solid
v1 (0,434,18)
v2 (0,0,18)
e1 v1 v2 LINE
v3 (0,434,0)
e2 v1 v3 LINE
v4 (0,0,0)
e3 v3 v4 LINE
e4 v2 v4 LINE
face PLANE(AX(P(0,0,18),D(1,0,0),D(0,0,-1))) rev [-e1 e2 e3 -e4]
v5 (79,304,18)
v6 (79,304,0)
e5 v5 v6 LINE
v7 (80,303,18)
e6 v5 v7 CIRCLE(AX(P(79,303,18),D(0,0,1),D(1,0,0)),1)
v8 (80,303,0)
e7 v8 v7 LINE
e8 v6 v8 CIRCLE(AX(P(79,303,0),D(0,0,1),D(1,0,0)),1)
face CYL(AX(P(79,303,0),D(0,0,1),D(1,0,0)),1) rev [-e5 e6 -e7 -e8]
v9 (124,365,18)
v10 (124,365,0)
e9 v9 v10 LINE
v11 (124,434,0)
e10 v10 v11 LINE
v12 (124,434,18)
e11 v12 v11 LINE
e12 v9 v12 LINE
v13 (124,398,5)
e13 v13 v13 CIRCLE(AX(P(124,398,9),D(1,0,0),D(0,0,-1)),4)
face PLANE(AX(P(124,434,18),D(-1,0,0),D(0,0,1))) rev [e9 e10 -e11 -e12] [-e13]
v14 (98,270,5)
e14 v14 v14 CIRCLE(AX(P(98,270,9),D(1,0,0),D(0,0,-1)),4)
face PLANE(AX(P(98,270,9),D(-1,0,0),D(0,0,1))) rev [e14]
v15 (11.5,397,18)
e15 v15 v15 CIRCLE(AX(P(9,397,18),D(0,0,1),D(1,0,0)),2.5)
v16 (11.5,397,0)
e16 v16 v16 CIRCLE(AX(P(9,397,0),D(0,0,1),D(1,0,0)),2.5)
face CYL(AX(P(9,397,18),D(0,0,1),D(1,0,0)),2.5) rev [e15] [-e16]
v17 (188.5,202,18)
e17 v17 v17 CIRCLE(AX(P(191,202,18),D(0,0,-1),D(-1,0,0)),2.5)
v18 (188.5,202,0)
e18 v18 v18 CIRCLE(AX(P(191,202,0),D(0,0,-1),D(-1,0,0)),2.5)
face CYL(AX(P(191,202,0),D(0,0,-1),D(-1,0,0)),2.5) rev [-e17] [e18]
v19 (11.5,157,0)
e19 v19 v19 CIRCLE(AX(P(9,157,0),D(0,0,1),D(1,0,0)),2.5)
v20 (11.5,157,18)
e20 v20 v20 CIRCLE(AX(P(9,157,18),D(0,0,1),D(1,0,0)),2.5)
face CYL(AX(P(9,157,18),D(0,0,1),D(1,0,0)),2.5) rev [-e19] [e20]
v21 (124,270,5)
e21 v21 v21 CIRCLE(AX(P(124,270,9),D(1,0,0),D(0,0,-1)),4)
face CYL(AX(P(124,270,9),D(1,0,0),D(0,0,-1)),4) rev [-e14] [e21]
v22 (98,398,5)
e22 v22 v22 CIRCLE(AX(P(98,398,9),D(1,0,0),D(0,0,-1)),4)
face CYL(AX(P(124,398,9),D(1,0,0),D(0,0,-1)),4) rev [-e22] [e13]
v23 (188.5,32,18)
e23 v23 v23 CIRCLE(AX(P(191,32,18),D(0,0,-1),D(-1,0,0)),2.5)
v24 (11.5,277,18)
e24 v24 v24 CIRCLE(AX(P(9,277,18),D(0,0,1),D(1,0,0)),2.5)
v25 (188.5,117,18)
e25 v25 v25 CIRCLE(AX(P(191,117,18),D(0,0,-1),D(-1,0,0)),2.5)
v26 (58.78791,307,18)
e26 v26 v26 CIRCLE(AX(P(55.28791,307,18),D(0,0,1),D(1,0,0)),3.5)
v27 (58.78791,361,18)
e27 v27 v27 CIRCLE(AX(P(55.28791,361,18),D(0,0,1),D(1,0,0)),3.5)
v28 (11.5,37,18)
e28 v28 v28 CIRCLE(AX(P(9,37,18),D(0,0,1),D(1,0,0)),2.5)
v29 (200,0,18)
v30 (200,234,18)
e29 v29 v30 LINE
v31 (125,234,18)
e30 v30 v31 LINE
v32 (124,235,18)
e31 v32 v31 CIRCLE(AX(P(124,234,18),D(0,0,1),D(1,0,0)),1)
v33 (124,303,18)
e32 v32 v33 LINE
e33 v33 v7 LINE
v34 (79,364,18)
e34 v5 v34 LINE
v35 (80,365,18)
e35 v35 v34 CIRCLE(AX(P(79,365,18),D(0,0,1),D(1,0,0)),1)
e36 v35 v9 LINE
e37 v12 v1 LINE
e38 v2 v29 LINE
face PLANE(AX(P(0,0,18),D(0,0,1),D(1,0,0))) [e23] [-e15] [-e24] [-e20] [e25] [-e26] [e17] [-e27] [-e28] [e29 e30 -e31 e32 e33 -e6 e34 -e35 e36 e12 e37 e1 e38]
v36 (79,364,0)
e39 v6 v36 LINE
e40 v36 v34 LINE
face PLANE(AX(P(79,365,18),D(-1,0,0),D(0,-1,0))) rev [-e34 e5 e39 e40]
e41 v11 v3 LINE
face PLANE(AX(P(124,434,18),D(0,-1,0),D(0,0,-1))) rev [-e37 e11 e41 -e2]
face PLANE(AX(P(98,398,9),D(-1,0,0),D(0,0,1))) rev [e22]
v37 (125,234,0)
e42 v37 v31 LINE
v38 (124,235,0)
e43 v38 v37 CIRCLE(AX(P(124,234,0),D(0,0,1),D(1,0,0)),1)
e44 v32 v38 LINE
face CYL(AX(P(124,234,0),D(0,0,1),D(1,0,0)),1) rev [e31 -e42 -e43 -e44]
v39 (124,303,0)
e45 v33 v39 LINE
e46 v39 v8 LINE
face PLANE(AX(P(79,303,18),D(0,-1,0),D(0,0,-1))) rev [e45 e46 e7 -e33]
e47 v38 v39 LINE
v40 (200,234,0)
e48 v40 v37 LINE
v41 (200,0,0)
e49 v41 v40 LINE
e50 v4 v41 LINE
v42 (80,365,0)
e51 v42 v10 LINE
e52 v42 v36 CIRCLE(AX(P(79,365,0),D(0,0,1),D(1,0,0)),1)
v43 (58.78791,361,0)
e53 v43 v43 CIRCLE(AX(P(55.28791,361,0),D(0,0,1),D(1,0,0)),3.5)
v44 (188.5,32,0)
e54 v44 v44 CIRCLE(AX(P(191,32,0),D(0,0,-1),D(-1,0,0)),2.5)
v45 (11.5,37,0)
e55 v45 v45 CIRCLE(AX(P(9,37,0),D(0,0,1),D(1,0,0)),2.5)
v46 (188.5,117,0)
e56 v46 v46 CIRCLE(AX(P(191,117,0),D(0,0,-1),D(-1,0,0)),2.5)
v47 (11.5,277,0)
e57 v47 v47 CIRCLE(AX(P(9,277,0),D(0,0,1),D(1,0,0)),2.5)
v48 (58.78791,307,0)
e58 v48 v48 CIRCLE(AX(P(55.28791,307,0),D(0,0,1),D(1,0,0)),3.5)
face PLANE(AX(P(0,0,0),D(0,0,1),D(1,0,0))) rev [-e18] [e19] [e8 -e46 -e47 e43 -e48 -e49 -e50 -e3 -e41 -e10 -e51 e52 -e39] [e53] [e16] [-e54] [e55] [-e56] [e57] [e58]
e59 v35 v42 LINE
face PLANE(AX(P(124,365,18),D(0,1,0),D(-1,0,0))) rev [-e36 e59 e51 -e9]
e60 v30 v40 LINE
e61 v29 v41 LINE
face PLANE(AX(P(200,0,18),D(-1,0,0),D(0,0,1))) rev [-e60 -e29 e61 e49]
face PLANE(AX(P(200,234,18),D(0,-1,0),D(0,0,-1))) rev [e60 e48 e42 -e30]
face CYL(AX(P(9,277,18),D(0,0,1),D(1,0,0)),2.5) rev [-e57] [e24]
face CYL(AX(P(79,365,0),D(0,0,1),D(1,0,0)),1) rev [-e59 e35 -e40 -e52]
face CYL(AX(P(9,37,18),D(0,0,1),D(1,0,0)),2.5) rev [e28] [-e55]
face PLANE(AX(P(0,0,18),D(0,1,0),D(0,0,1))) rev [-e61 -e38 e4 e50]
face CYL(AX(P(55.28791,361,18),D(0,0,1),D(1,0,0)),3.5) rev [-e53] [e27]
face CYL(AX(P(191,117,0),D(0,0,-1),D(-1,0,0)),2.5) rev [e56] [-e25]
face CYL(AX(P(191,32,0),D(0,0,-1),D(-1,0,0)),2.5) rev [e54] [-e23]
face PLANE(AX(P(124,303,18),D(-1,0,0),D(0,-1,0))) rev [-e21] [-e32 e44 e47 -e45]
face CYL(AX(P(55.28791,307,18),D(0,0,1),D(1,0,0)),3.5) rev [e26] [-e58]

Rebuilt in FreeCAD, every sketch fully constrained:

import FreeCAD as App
import Part
import Sketcher

doc = App.newDocument("Part")
body = doc.addObject("PartDesign::Body", "Body")

# Sketch on XY plane
sketch1 = body.newObject("Sketcher::SketchObject", "Sketch")
sketch1.AttachmentSupport = (doc.getObject("XY_Plane"), [""])
sketch1.MapMode = "FlatFace"
sketch1.addGeometry([
    Part.LineSegment(App.Vector(200, 234, 0), App.Vector(124, 234, 0)),  # 0
    Part.LineSegment(App.Vector(124, 234, 0), App.Vector(124, 303, 0)),  # 1
    Part.LineSegment(App.Vector(124, 303, 0), App.Vector(79, 303, 0)),  # 2
    Part.LineSegment(App.Vector(79, 303, 0), App.Vector(79, 365, 0)),  # 3
    Part.LineSegment(App.Vector(79, 365, 0), App.Vector(124, 365, 0)),  # 4
    Part.LineSegment(App.Vector(124, 365, 0), App.Vector(124, 434, 0)),  # 5
    Part.LineSegment(App.Vector(124, 434, 0), App.Vector(0, 434, 0)),  # 6
    Part.LineSegment(App.Vector(0, 434, 0), App.Vector(0, 0, 0)),  # 7
    Part.LineSegment(App.Vector(0, 0, 0), App.Vector(200, 0, 0)),  # 8
    Part.LineSegment(App.Vector(200, 0, 0), App.Vector(200, 234, 0)),  # 9
], False)
sketch1.addConstraint([
    Sketcher.Constraint("Coincident", 0, 2, 1, 1),
    Sketcher.Constraint("Coincident", 1, 2, 2, 1),
    Sketcher.Constraint("Coincident", 2, 2, 3, 1),
    Sketcher.Constraint("Coincident", 3, 2, 4, 1),
    Sketcher.Constraint("Coincident", 4, 2, 5, 1),
    Sketcher.Constraint("Coincident", 5, 2, 6, 1),
    Sketcher.Constraint("Coincident", 6, 2, 7, 1),
    Sketcher.Constraint("Coincident", 7, 2, 8, 1),
    Sketcher.Constraint("Coincident", 8, 2, 9, 1),
    Sketcher.Constraint("Coincident", 9, 2, 0, 1),
    Sketcher.Constraint("Horizontal", 0),
    Sketcher.Constraint("Vertical", 1),
    Sketcher.Constraint("Horizontal", 2),
    Sketcher.Constraint("Vertical", 3),
    Sketcher.Constraint("Horizontal", 4),
    Sketcher.Constraint("Vertical", 5),
    Sketcher.Constraint("Horizontal", 6),
    Sketcher.Constraint("Vertical", 7),
    Sketcher.Constraint("Horizontal", 8),
    Sketcher.Constraint("Vertical", 9),
    Sketcher.Constraint("Coincident", 7, 2, -1, 1),
    Sketcher.Constraint("Vertical", 1, 2, 4, 2),
    Sketcher.Constraint("Equal", 1, 5),
    Sketcher.Constraint("DistanceX", 0, 2, 0, 1, 76.0),
    Sketcher.Constraint("DistanceX", 2, 2, 2, 1, 45.0),
    Sketcher.Constraint("DistanceX", 6, 2, 6, 1, 124.0),
    Sketcher.Constraint("DistanceY", 1, 1, 1, 2, 69.0),
    Sketcher.Constraint("DistanceY", 3, 1, 3, 2, 62.0),
    Sketcher.Constraint("DistanceY", 7, 2, 7, 1, 434.0),
])
pad1 = body.newObject("PartDesign::Pad", "Pad")
pad1.Profile = sketch1
pad1.Length = 18

# Sketch on XY plane
sketch2 = body.newObject("Sketcher::SketchObject", "Sketch001")
sketch2.AttachmentSupport = (doc.getObject("XY_Plane"), [""])
sketch2.MapMode = "FlatFace"
sketch2.AttachmentOffset = App.Placement(App.Vector(0, 0, 18), App.Rotation())
sketch2.addGeometry([
    Part.Circle(App.Vector(79, 365, 0), App.Vector(0, 0, 1), 1),
    Part.Circle(App.Vector(79, 303, 0), App.Vector(0, 0, 1), 1),
    Part.Circle(App.Vector(124, 234, 0), App.Vector(0, 0, 1), 1),
], False)
sketch2.addConstraint([
    Sketcher.Constraint("Equal", 0, 1),
    Sketcher.Constraint("Equal", 1, 2),
    Sketcher.Constraint("Vertical", 0, 3, 1, 3),
    Sketcher.Constraint("Diameter", 0, 2.0),
    Sketcher.Constraint("DistanceX", -1, 1, 0, 3, 79.0),
    Sketcher.Constraint("DistanceY", -1, 1, 0, 3, 365.0),
    Sketcher.Constraint("DistanceY", -1, 1, 1, 3, 303.0),
    Sketcher.Constraint("DistanceX", -1, 1, 2, 3, 124.0),
    Sketcher.Constraint("DistanceY", -1, 1, 2, 3, 234.0),
])
pocket1 = body.newObject("PartDesign::Pocket", "Pocket")
pocket1.Profile = sketch2
pocket1.Length = 18

# Sketch on XY plane
sketch3 = body.newObject("Sketcher::SketchObject", "Sketch002")
sketch3.AttachmentSupport = (doc.getObject("XY_Plane"), [""])
sketch3.MapMode = "FlatFace"
sketch3.AttachmentOffset = App.Placement(App.Vector(0, 0, 18), App.Rotation())
sketch3.addGeometry([
    Part.Circle(App.Vector(9, 397, 0), App.Vector(0, 0, 1), 2.5),
    Part.Circle(App.Vector(9, 277, 0), App.Vector(0, 0, 1), 2.5),
    Part.Circle(App.Vector(9, 157, 0), App.Vector(0, 0, 1), 2.5),
    Part.Circle(App.Vector(9, 37, 0), App.Vector(0, 0, 1), 2.5),
], False)
sketch3.addConstraint([
    Sketcher.Constraint("Equal", 0, 1),
    Sketcher.Constraint("Equal", 1, 2),
    Sketcher.Constraint("Equal", 2, 3),
    Sketcher.Constraint("Vertical", 0, 3, 1, 3),
    Sketcher.Constraint("Vertical", 1, 3, 2, 3),
    Sketcher.Constraint("Vertical", 2, 3, 3, 3),
    Sketcher.Constraint("Diameter", 0, 5.0),
    Sketcher.Constraint("DistanceX", -1, 1, 0, 3, 9.0),
    Sketcher.Constraint("DistanceY", -1, 1, 0, 3, 397.0),
    Sketcher.Constraint("DistanceY", -1, 1, 1, 3, 277.0),
    Sketcher.Constraint("DistanceY", -1, 1, 2, 3, 157.0),
    Sketcher.Constraint("DistanceY", -1, 1, 3, 3, 37.0),
])
doc.recompute()
hole = body.newObject("PartDesign::Hole", "Hole")
hole.Profile = sketch3
hole.ThreadType = "None"
hole.Diameter = 5
hole.DepthType = "ThroughAll"

# Sketch on XY plane
sketch4 = body.newObject("Sketcher::SketchObject", "Sketch003")
sketch4.AttachmentSupport = (doc.getObject("XY_Plane"), [""])
sketch4.MapMode = "FlatFace"
sketch4.addGeometry([
    Part.Circle(App.Vector(191, 202, 0), App.Vector(0, 0, 1), 2.5),
    Part.Circle(App.Vector(191, 117, 0), App.Vector(0, 0, 1), 2.5),
    Part.Circle(App.Vector(191, 32, 0), App.Vector(0, 0, 1), 2.5),
], False)
sketch4.addConstraint([
    Sketcher.Constraint("Equal", 0, 1),
    Sketcher.Constraint("Equal", 1, 2),
    Sketcher.Constraint("Vertical", 0, 3, 1, 3),
    Sketcher.Constraint("Vertical", 1, 3, 2, 3),
    Sketcher.Constraint("Diameter", 0, 5.0),
    Sketcher.Constraint("DistanceX", -1, 1, 0, 3, 191.0),
    Sketcher.Constraint("DistanceY", -1, 1, 0, 3, 202.0),
    Sketcher.Constraint("DistanceY", -1, 1, 1, 3, 117.0),
    Sketcher.Constraint("DistanceY", -1, 1, 2, 3, 32.0),
])
doc.recompute()
hole2 = body.newObject("PartDesign::Hole", "Hole001")
hole2.Profile = sketch4
hole2.ThreadType = "None"
hole2.Diameter = 5
hole2.DepthType = "ThroughAll"
hole2.Reversed = True

# Sketch on YZ plane
sketch5 = body.newObject("Sketcher::SketchObject", "Sketch004")
sketch5.AttachmentSupport = (doc.getObject("YZ_Plane"), [""])
sketch5.MapMode = "FlatFace"
sketch5.AttachmentOffset = App.Placement(App.Vector(0, 0, 124), App.Rotation())
sketch5.addGeometry([
    Part.Circle(App.Vector(398, 9, 0), App.Vector(0, 0, 1), 4),
    Part.Circle(App.Vector(270, 9, 0), App.Vector(0, 0, 1), 4),
], False)
sketch5.addConstraint([
    Sketcher.Constraint("Equal", 0, 1),
    Sketcher.Constraint("Horizontal", 0, 3, 1, 3),
    Sketcher.Constraint("Diameter", 0, 8.0),
    Sketcher.Constraint("DistanceX", -1, 1, 0, 3, 398.0),
    Sketcher.Constraint("DistanceY", -1, 1, 0, 3, 9.0),
    Sketcher.Constraint("DistanceX", -1, 1, 1, 3, 270.0),
])
doc.recompute()
hole3 = body.newObject("PartDesign::Hole", "Hole002")
hole3.Profile = sketch5
hole3.ThreadType = "None"
hole3.Diameter = 8
hole3.DepthType = "Dimension"
hole3.Depth = 26
hole3.DrillPoint = "Flat"

# Sketch on XY plane
sketch6 = body.newObject("Sketcher::SketchObject", "Sketch005")
sketch6.AttachmentSupport = (doc.getObject("XY_Plane"), [""])
sketch6.MapMode = "FlatFace"
sketch6.AttachmentOffset = App.Placement(App.Vector(0, 0, 18), App.Rotation())
sketch6.addGeometry([
    Part.Circle(App.Vector(55.3, 361, 0), App.Vector(0, 0, 1), 3.5),
    Part.Circle(App.Vector(55.3, 307, 0), App.Vector(0, 0, 1), 3.5),
], False)
sketch6.addConstraint([
    Sketcher.Constraint("Equal", 0, 1),
    Sketcher.Constraint("Vertical", 0, 3, 1, 3),
    Sketcher.Constraint("Diameter", 0, 7.0),
    Sketcher.Constraint("DistanceY", -1, 1, 0, 3, 361.0),
    Sketcher.Constraint("DistanceY", -1, 1, 1, 3, 307.0),
    Sketcher.Constraint("DistanceX", -1, 1, 0, 3, 55.28791),
])
doc.recompute()
hole4 = body.newObject("PartDesign::Hole", "Hole003")
hole4.Profile = sketch6
hole4.ThreadType = "None"
hole4.Diameter = 7
hole4.DepthType = "ThroughAll"

doc.recompute()
